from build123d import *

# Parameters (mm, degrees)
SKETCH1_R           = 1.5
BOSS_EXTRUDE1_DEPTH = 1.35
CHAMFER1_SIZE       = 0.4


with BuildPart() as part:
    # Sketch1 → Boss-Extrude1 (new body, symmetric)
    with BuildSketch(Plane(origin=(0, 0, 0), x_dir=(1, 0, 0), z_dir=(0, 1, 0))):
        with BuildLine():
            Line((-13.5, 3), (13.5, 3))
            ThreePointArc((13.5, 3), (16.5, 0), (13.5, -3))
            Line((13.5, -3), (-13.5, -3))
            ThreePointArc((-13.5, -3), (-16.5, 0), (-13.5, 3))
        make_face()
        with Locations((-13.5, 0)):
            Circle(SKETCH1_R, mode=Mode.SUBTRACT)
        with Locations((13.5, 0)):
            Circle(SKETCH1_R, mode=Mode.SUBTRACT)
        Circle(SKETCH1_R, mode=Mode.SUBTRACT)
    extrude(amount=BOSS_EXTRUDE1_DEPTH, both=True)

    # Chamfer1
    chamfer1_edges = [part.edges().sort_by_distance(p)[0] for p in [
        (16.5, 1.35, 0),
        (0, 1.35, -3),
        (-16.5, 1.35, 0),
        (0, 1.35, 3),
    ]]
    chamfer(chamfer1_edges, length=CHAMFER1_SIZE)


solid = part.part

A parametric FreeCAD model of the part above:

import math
import FreeCAD as App
import Part
import Sketcher


def edges_at(feature, points):
    """Names of the edges that pass closest to the given points."""
    edges = feature.Shape.Edges
    near = lambda p: min(range(len(edges)), key=lambda i: edges[i].distToShape(Part.Vertex(*p))[0])
    return sorted({f"Edge{near(p) + 1}" for p in points})

doc = App.newDocument("Part")
body = doc.addObject("PartDesign::Body", "Body")

# Sketch on XZ plane
sketch1 = body.newObject("Sketcher::SketchObject", "Sketch")
sketch1.AttachmentSupport = (doc.getObject("XZ_Plane"), [""])
sketch1.MapMode = "FlatFace"
sketch1.addGeometry(Part.LineSegment(App.Vector(13.5, -3, 0), App.Vector(-13.5, -3, 0)), False)
sketch1.addGeometry(Part.ArcOfCircle(Part.Circle(App.Vector(-13.5, 0, 0), App.Vector(0, 0, 1), 3), math.radians(90), math.radians(270)), False)
sketch1.addGeometry(Part.LineSegment(App.Vector(-13.5, 3, 0), App.Vector(13.5, 3, 0)), False)
sketch1.addGeometry(Part.ArcOfCircle(Part.Circle(App.Vector(13.5, 0, 0), App.Vector(0, 0, 1), 3), math.radians(-90), math.radians(90)), False)
sketch1.addGeometry(Part.Circle(App.Vector(13.5, 0, 0), App.Vector(0, 0, 1), 1.5), False)
sketch1.addGeometry(Part.Circle(App.Vector(0, 0, 0), App.Vector(0, 0, 1), 1.5), False)
sketch1.addGeometry(Part.Circle(App.Vector(-13.5, 0, 0), App.Vector(0, 0, 1), 1.5), False)
sketch1.addConstraint(Sketcher.Constraint("Tangent", 0, 2, 1, 2))
sketch1.addConstraint(Sketcher.Constraint("Tangent", 1, 1, 2, 1))
sketch1.addConstraint(Sketcher.Constraint("Tangent", 2, 2, 3, 2))
sketch1.addConstraint(Sketcher.Constraint("Tangent", 3, 1, 0, 1))
sketch1.addConstraint(Sketcher.Constraint("Horizontal", 0))
sketch1.addConstraint(Sketcher.Constraint("Horizontal", 2))
sketch1.addConstraint(Sketcher.Constraint("Coincident", 5, 3, -1, 1))
sketch1.addConstraint(Sketcher.Constraint("Coincident", 4, 3, 3, 3))
sketch1.addConstraint(Sketcher.Constraint("Coincident", 6, 3, 1, 3))
sketch1.addConstraint(Sketcher.Constraint("Equal", 4, 5))
sketch1.addConstraint(Sketcher.Constraint("Equal", 5, 6))
sketch1.addConstraint(Sketcher.Constraint("Symmetric", 1, 3, 3, 3, -1, 1))
sketch1.addConstraint(Sketcher.Constraint("Diameter", 4, 3.0))
sketch1.addConstraint(Sketcher.Constraint("Radius", 1, 3.0))
sketch1.addConstraint(Sketcher.Constraint("DistanceX", 0, 2, 0, 1, 27.0))
pad1 = body.newObject("PartDesign::Pad", "Pad")
pad1.Profile = sketch1
pad1.Length = 2.7
pad1.Midplane = True
doc.recompute()

chamfer = body.newObject("PartDesign::Chamfer", "Chamfer")
chamfer.Base = (pad1, edges_at(pad1, [
    (16.5, 1.35, 0),
    (0, 1.35, -3),
    (-16.5, 1.35, 0),
    (0, 1.35, 3),
]))
chamfer.Size = 0.4

doc.recompute()
